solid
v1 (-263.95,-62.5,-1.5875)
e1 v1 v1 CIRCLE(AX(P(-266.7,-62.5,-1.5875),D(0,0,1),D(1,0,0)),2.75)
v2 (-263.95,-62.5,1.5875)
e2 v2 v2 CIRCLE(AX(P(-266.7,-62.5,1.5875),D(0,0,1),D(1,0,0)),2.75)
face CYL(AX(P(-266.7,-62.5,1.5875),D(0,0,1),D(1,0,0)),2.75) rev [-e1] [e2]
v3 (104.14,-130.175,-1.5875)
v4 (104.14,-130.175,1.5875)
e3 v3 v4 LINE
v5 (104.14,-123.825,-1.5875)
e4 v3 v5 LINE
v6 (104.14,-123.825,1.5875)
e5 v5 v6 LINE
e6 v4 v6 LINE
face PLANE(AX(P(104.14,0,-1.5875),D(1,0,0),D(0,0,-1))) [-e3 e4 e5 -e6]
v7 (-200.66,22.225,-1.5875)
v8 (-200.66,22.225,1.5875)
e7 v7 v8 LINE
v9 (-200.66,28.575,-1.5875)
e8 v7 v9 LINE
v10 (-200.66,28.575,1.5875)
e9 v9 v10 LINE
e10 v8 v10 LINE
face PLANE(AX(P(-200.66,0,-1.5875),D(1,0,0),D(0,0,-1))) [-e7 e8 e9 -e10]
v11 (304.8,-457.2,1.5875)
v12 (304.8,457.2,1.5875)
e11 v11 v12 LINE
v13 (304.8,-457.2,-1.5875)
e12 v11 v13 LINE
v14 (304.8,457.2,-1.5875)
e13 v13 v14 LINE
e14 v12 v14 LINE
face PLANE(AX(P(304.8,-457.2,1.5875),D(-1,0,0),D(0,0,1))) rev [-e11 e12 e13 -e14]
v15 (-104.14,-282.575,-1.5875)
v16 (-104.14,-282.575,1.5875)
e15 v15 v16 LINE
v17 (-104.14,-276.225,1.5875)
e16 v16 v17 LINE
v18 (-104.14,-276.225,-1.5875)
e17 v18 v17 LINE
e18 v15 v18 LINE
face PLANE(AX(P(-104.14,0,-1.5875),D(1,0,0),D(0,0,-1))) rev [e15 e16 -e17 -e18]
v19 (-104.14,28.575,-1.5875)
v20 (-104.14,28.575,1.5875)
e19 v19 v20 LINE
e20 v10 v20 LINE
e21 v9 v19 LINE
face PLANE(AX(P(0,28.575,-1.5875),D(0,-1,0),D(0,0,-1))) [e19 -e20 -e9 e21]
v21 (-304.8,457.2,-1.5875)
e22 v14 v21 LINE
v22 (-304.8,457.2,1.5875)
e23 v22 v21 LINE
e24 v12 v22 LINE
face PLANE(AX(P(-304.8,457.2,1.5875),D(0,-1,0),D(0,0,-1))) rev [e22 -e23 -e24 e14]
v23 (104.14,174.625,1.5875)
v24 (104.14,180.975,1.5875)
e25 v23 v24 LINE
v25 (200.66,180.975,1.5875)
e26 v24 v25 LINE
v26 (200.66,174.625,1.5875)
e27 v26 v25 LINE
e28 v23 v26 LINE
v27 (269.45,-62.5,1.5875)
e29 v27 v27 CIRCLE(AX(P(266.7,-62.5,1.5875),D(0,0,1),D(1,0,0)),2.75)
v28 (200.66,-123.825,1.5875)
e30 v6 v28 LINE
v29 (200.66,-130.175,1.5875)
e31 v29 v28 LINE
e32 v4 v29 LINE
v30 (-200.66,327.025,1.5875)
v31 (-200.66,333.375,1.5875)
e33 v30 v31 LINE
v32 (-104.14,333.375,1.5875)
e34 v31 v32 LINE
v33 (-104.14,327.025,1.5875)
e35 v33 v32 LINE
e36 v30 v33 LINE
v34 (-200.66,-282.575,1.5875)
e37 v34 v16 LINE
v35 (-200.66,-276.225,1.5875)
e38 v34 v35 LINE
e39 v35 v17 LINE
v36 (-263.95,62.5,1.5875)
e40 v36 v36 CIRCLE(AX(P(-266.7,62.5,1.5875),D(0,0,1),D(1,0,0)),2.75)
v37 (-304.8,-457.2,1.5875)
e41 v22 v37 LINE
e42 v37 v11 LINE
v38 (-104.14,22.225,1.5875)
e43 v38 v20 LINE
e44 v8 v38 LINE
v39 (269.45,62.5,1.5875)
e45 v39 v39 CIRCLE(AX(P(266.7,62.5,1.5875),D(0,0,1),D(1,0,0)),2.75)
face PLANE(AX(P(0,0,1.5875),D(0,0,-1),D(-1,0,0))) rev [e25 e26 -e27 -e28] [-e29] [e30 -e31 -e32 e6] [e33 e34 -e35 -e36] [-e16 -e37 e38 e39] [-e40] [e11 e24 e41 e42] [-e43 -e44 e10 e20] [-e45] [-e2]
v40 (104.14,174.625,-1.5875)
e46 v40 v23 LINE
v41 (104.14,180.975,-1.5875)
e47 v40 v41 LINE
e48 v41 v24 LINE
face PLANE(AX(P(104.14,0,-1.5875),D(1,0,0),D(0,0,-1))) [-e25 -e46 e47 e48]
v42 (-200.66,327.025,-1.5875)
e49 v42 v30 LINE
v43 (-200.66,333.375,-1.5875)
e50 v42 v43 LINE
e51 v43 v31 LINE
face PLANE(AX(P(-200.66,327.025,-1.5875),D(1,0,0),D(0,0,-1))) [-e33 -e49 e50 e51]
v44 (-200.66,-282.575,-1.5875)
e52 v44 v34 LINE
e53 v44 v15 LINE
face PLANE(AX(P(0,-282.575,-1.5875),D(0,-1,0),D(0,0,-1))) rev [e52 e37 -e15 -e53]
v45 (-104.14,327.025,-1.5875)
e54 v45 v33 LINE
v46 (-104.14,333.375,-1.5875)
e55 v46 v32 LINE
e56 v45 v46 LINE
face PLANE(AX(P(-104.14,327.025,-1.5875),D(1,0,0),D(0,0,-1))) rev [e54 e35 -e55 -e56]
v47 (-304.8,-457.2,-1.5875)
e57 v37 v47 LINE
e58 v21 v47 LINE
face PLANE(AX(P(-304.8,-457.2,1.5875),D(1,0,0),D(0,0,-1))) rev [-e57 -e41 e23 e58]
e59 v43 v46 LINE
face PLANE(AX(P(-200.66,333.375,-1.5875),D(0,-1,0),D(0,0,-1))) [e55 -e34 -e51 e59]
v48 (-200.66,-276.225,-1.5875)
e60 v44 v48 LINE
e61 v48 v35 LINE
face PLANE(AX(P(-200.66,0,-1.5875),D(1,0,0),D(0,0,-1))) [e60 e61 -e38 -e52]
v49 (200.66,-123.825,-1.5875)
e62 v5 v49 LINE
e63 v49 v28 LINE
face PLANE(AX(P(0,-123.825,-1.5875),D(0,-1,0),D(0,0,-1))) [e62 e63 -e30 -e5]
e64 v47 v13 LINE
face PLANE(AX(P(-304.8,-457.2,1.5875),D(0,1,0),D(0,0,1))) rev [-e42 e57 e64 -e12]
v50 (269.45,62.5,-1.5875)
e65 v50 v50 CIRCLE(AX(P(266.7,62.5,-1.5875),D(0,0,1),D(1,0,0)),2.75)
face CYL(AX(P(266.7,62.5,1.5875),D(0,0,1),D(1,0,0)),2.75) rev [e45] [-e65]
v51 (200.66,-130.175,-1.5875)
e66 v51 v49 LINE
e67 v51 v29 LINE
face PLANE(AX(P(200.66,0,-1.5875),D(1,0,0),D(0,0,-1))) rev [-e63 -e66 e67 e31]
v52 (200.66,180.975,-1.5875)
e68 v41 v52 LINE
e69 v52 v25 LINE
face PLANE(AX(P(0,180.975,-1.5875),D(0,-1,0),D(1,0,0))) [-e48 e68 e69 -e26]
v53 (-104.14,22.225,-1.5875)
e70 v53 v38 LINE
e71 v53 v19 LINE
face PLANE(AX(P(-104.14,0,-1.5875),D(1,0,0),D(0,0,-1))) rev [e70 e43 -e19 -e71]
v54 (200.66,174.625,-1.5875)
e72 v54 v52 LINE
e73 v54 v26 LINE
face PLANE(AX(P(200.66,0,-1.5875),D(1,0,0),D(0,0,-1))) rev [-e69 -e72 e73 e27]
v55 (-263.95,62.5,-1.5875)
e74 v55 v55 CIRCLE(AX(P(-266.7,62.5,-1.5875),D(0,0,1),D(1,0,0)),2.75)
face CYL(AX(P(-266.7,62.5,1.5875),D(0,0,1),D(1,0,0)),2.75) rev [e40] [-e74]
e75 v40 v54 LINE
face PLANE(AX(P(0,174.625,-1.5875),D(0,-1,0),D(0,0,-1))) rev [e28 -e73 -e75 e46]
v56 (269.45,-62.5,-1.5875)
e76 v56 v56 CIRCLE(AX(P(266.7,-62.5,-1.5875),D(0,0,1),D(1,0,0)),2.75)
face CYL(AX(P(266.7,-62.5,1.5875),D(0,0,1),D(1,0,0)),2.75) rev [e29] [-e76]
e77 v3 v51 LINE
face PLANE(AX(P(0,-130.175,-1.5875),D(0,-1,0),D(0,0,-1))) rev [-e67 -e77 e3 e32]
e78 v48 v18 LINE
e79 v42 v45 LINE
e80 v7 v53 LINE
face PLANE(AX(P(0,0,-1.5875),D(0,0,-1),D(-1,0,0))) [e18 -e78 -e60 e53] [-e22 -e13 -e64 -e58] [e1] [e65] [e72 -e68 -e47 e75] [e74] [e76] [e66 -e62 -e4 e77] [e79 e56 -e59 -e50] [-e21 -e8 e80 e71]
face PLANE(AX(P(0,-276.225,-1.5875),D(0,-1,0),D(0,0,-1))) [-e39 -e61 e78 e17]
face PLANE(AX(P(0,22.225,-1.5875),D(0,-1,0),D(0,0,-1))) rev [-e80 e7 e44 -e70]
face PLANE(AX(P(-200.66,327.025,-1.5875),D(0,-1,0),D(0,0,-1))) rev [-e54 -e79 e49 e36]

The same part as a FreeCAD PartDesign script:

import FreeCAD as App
import Part
import Sketcher
from FreeCAD import Vector
Q = App.Units.Quantity

doc = App.newDocument("Part")
params = doc.addObject("Spreadsheet::Sheet", "Params")
for row, (alias, value) in enumerate([
    ("sketch1_width", "24 in"),
    ("sketch1_height", "36 in"),
    ("pad1_length", "0.125 in"),
    ("sketch2_width", "3.8 in"),
    ("sketch2_height", "0.25 in"),
    ("hole_diameter", "5.5 mm"),
], start=1):
    params.set(f"A{row}", alias)
    params.set(f"B{row}", "=" + value)
    params.setAlias(f"B{row}", alias)

body = doc.addObject("PartDesign::Body", "Body")

sketch1 = doc.addObject("Sketcher::SketchObject", "Sketch")
body.addObject(sketch1)
sketch1.AttachmentSupport = (doc.XY_Plane, [""])
sketch1.MapMode = "FlatFace"
sketch1.addGeometry(Part.LineSegment(Vector(-305, 457, 0), Vector(-305, -457, 0)), False)
sketch1.addGeometry(Part.LineSegment(Vector(-305, -457, 0), Vector(305, -457, 0)), False)
sketch1.addGeometry(Part.LineSegment(Vector(305, -457, 0), Vector(305, 457, 0)), False)
sketch1.addGeometry(Part.LineSegment(Vector(305, 457, 0), Vector(-305, 457, 0)), False)
sketch1.addConstraint(Sketcher.Constraint("Coincident", 0, 2, 1, 1))
sketch1.addConstraint(Sketcher.Constraint("Coincident", 1, 2, 2, 1))
sketch1.addConstraint(Sketcher.Constraint("Coincident", 2, 2, 3, 1))
sketch1.addConstraint(Sketcher.Constraint("Coincident", 3, 2, 0, 1))
sketch1.addConstraint(Sketcher.Constraint("Vertical", 0))
sketch1.addConstraint(Sketcher.Constraint("Horizontal", 1))
sketch1.addConstraint(Sketcher.Constraint("Vertical", 2))
sketch1.addConstraint(Sketcher.Constraint("Horizontal", 3))
sketch1.addConstraint(Sketcher.Constraint("Symmetric", 0, 2, 2, 2, -1, 1))
sketch1.addConstraint(Sketcher.Constraint("DistanceX", 1, 1, 1, 2, Q("24 in")))
sketch1.addConstraint(Sketcher.Constraint("DistanceY", 0, 2, 0, 1, Q("36 in")))
sketch1.setExpression("Constraints[9]", "Params.sketch1_width")
sketch1.setExpression("Constraints[10]", "Params.sketch1_height")
pad1 = doc.addObject("PartDesign::Pad", "Pad")
body.addObject(pad1)
pad1.Profile = sketch1
pad1.setExpression("Length", "Params.pad1_length")
pad1.Midplane = True

sketch2 = doc.addObject("Sketcher::SketchObject", "Sketch001")
body.addObject(sketch2)
sketch2.AttachmentSupport = (doc.XY_Plane, [""])
sketch2.MapMode = "FlatFace"
sketch2.AttachmentOffset = App.Placement(Vector(0, 0, 0.0625 * 25.4), App.Rotation())
sketch2.addGeometry(Part.LineSegment(Vector(104, 181, 0), Vector(104, 175, 0)), False)
sketch2.addGeometry(Part.LineSegment(Vector(104, 175, 0), Vector(201, 175, 0)), False)
sketch2.addGeometry(Part.LineSegment(Vector(201, 175, 0), Vector(201, 181, 0)), False)
sketch2.addGeometry(Part.LineSegment(Vector(201, 181, 0), Vector(104, 181, 0)), False)
sketch2.addGeometry(Part.LineSegment(Vector(-201, 29, 0), Vector(-201, 22, 0)), False)
sketch2.addGeometry(Part.LineSegment(Vector(-201, 22, 0), Vector(-104, 22, 0)), False)
sketch2.addGeometry(Part.LineSegment(Vector(-104, 22, 0), Vector(-104, 29, 0)), False)
sketch2.addGeometry(Part.LineSegment(Vector(-104, 29, 0), Vector(-201, 29, 0)), False)
sketch2.addGeometry(Part.LineSegment(Vector(104, -124, 0), Vector(104, -130, 0)), False)
sketch2.addGeometry(Part.LineSegment(Vector(104, -130, 0), Vector(201, -130, 0)), False)
sketch2.addGeometry(Part.LineSegment(Vector(201, -130, 0), Vector(201, -124, 0)), False)
sketch2.addGeometry(Part.LineSegment(Vector(201, -124, 0), Vector(104, -124, 0)), False)
sketch2.addGeometry(Part.LineSegment(Vector(-201, -276, 0), Vector(-201, -283, 0)), False)
sketch2.addGeometry(Part.LineSegment(Vector(-201, -283, 0), Vector(-104, -283, 0)), False)
sketch2.addGeometry(Part.LineSegment(Vector(-104, -283, 0), Vector(-104, -276, 0)), False)
sketch2.addGeometry(Part.LineSegment(Vector(-104, -276, 0), Vector(-201, -276, 0)), False)
sketch2.addGeometry(Part.LineSegment(Vector(-201, 333, 0), Vector(-201, 327, 0)), False)
sketch2.addGeometry(Part.LineSegment(Vector(-201, 327, 0), Vector(-104, 327, 0)), False)
sketch2.addGeometry(Part.LineSegment(Vector(-104, 327, 0), Vector(-104, 333, 0)), False)
sketch2.addGeometry(Part.LineSegment(Vector(-104, 333, 0), Vector(-201, 333, 0)), False)
sketch2.addConstraint(Sketcher.Constraint("Coincident", 0, 2, 1, 1))
sketch2.addConstraint(Sketcher.Constraint("Coincident", 1, 2, 2, 1))
sketch2.addConstraint(Sketcher.Constraint("Coincident", 2, 2, 3, 1))
sketch2.addConstraint(Sketcher.Constraint("Coincident", 3, 2, 0, 1))
sketch2.addConstraint(Sketcher.Constraint("Coincident", 4, 2, 5, 1))
sketch2.addConstraint(Sketcher.Constraint("Coincident", 5, 2, 6, 1))
sketch2.addConstraint(Sketcher.Constraint("Coincident", 6, 2, 7, 1))
sketch2.addConstraint(Sketcher.Constraint("Coincident", 7, 2, 4, 1))
sketch2.addConstraint(Sketcher.Constraint("Coincident", 8, 2, 9, 1))
sketch2.addConstraint(Sketcher.Constraint("Coincident", 9, 2, 10, 1))
sketch2.addConstraint(Sketcher.Constraint("Coincident", 10, 2, 11, 1))
sketch2.addConstraint(Sketcher.Constraint("Coincident", 11, 2, 8, 1))
sketch2.addConstraint(Sketcher.Constraint("Coincident", 12, 2, 13, 1))
sketch2.addConstraint(Sketcher.Constraint("Coincident", 13, 2, 14, 1))
sketch2.addConstraint(Sketcher.Constraint("Coincident", 14, 2, 15, 1))
sketch2.addConstraint(Sketcher.Constraint("Coincident", 15, 2, 12, 1))
sketch2.addConstraint(Sketcher.Constraint("Coincident", 16, 2, 17, 1))
sketch2.addConstraint(Sketcher.Constraint("Coincident", 17, 2, 18, 1))
sketch2.addConstraint(Sketcher.Constraint("Coincident", 18, 2, 19, 1))
sketch2.addConstraint(Sketcher.Constraint("Coincident", 19, 2, 16, 1))
sketch2.addConstraint(Sketcher.Constraint("Vertical", 0))
sketch2.addConstraint(Sketcher.Constraint("Horizontal", 1))
sketch2.addConstraint(Sketcher.Constraint("Vertical", 2))
sketch2.addConstraint(Sketcher.Constraint("Horizontal", 3))
sketch2.addConstraint(Sketcher.Constraint("Vertical", 4))
sketch2.addConstraint(Sketcher.Constraint("Horizontal", 5))
sketch2.addConstraint(Sketcher.Constraint("Vertical", 6))
sketch2.addConstraint(Sketcher.Constraint("Horizontal", 7))
sketch2.addConstraint(Sketcher.Constraint("Vertical", 8))
sketch2.addConstraint(Sketcher.Constraint("Horizontal", 9))
sketch2.addConstraint(Sketcher.Constraint("Vertical", 10))
sketch2.addConstraint(Sketcher.Constraint("Horizontal", 11))
sketch2.addConstraint(Sketcher.Constraint("Vertical", 12))
sketch2.addConstraint(Sketcher.Constraint("Horizontal", 13))
sketch2.addConstraint(Sketcher.Constraint("Vertical", 14))
sketch2.addConstraint(Sketcher.Constraint("Horizontal", 15))
sketch2.addConstraint(Sketcher.Constraint("Vertical", 16))
sketch2.addConstraint(Sketcher.Constraint("Horizontal", 17))
sketch2.addConstraint(Sketcher.Constraint("Vertical", 18))
sketch2.addConstraint(Sketcher.Constraint("Horizontal", 19))
sketch2.addConstraint(Sketcher.Constraint("Vertical", 3, 2, 8, 2))
sketch2.addConstraint(Sketcher.Constraint("Vertical", 2, 2, 9, 2))
sketch2.addConstraint(Sketcher.Constraint("Vertical", 7, 2, 12, 2))
sketch2.addConstraint(Sketcher.Constraint("Vertical", 6, 2, 13, 2))
sketch2.addConstraint(Sketcher.Constraint("Vertical", 15, 2, 16, 2))
sketch2.addConstraint(Sketcher.Constraint("Vertical", 14, 2, 17, 2))
sketch2.addConstraint(Sketcher.Constraint("Equal", 3, 5))
sketch2.addConstraint(Sketcher.Constraint("Equal", 2, 4))
sketch2.addConstraint(Sketcher.Constraint("Equal", 6, 8))
sketch2.addConstraint(Sketcher.Constraint("Equal", 10, 12))
sketch2.addConstraint(Sketcher.Constraint("Equal", 14, 16))
sketch2.addConstraint(Sketcher.Constraint("DistanceX", 1, 1, 1, 2, Q("3.8 in")))
sketch2.addConstraint(Sketcher.Constraint("DistanceX", 4, 2, 0, 2, Q("12 in")))
sketch2.addConstraint(Sketcher.Constraint("DistanceY", 4, 2, 0, 2, Q("6 in")))
sketch2.addConstraint(Sketcher.Constraint("DistanceY", 8, 2, 5, 2, Q("6 in")))
sketch2.addConstraint(Sketcher.Constraint("DistanceY", 12, 2, 4, 2, Q("12 in")))
sketch2.addConstraint(Sketcher.Constraint("DistanceY", 4, 2, 16, 2, Q("12 in")))
sketch2.addConstraint(Sketcher.Constraint("DistanceY", 0, 2, 0, 1, Q("0.25 in")))
sketch2.addConstraint(Sketcher.Constraint("DistanceX", -1, 1, 0, 2, Q("4.1 in")))
sketch2.addConstraint(Sketcher.Constraint("DistanceY", -1, 1, 0, 2, Q("6.875 in")))
sketch2.setExpression("Constraints[51]", "Params.sketch2_width")
sketch2.setExpression("Constraints[57]", "Params.sketch2_height")
pocket1 = doc.addObject("PartDesign::Pocket", "Pocket")
body.addObject(pocket1)
pocket1.Profile = sketch2
pocket1.Type = "ThroughAll"

sketch3 = doc.addObject("Sketcher::SketchObject", "Sketch002")
body.addObject(sketch3)
sketch3.AttachmentSupport = (doc.XY_Plane, [""])
sketch3.MapMode = "FlatFace"
sketch3.AttachmentOffset = App.Placement(Vector(0, 0, 0.0625 * 25.4), App.Rotation())
sketch3.addGeometry(Part.Circle(Vector(-266.7, 62.5, 0), Vector(0, 0, 1), 2.8), False)
sketch3.addGeometry(Part.Circle(Vector(-266.7, -62.5, 0), Vector(0, 0, 1), 2.8), False)
sketch3.addGeometry(Part.Circle(Vector(266.7, 62.5, 0), Vector(0, 0, 1), 2.8), False)
sketch3.addGeometry(Part.Circle(Vector(266.7, -62.5, 0), Vector(0, 0, 1), 2.8), False)
sketch3.addConstraint(Sketcher.Constraint("Equal", 0, 1))
sketch3.addConstraint(Sketcher.Constraint("Equal", 1, 2))
sketch3.addConstraint(Sketcher.Constraint("Equal", 2, 3))
sketch3.addConstraint(Sketcher.Constraint("Symmetric", 1, 3, 2, 3, -1, 1))
sketch3.addConstraint(Sketcher.Constraint("Symmetric", 0, 3, 3, 3, -1, 1))
sketch3.addConstraint(Sketcher.Constraint("Symmetric", 0, 3, 2, 3, -2))
sketch3.addConstraint(Sketcher.Constraint("DistanceX", 0, 3, 2, 3, Q("21 in")))
sketch3.addConstraint(Sketcher.Constraint("Diameter", 0, 5.5))
sketch3.addConstraint(Sketcher.Constraint("DistanceY", -1, 1, 0, 3, 62.5))
doc.recompute()
hole = doc.addObject("PartDesign::Hole", "Hole")
body.addObject(hole)
hole.Profile = sketch3
hole.ThreadType = "None"
hole.setExpression("Diameter", "Params.hole_diameter")
hole.DepthType = "ThroughAll"

doc.recompute()
